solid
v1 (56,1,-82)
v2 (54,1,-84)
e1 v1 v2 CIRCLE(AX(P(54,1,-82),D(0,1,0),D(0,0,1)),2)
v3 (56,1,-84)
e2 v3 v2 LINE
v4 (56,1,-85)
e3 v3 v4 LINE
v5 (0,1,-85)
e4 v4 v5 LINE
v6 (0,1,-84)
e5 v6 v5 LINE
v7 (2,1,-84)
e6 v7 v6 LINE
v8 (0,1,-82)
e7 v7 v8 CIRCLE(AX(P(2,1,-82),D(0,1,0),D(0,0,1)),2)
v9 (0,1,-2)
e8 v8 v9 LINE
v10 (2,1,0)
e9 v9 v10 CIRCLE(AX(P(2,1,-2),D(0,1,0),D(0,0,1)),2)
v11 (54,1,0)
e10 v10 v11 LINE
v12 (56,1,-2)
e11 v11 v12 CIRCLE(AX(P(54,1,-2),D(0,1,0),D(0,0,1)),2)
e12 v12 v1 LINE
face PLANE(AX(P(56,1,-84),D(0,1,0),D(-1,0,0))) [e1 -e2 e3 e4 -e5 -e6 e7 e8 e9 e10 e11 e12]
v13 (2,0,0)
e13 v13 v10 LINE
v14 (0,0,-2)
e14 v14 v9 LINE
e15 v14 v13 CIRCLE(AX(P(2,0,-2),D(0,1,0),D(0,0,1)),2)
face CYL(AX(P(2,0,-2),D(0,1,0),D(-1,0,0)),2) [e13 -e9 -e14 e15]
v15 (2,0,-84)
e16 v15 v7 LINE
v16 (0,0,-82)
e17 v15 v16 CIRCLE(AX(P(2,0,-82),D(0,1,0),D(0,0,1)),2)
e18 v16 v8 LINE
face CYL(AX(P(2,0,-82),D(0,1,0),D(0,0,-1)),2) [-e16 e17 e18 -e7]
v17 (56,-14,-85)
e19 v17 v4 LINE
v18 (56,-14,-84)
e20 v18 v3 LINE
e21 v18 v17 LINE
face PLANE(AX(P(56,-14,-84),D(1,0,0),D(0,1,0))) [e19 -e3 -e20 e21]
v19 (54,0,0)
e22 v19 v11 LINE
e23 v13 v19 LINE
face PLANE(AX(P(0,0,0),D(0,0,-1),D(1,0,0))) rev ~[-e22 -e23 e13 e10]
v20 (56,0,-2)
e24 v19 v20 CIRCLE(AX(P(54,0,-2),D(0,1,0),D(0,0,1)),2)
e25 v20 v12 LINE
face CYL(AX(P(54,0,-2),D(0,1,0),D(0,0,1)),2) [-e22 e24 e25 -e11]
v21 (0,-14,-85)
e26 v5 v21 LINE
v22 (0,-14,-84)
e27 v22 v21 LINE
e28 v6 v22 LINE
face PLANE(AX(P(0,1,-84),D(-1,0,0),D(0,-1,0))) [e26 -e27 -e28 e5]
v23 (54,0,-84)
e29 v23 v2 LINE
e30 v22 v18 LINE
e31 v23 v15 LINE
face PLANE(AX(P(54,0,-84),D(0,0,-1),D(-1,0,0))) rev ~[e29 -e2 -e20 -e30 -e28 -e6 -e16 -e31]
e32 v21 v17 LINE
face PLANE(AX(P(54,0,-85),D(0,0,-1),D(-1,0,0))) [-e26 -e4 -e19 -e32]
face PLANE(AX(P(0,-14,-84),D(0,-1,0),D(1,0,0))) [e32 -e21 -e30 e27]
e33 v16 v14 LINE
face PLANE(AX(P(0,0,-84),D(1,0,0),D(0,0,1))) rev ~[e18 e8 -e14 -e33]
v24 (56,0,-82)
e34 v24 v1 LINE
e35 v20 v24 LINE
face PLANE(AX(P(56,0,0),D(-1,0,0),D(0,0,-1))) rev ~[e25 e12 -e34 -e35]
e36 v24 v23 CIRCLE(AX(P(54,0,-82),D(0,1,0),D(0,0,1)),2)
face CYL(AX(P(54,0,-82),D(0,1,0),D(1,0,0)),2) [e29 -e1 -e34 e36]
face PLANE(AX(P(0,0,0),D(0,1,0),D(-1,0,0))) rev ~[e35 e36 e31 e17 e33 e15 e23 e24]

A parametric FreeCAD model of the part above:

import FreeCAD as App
import Part
import Sketcher


def edges_at(feature, points):
    """Names of the edges that pass closest to the given points."""
    edges = feature.Shape.Edges
    near = lambda p: min(range(len(edges)), key=lambda i: edges[i].distToShape(Part.Vertex(*p))[0])
    return sorted({f"Edge{near(p) + 1}" for p in points})


def add_polygon(sketch, points):
    """Adds a closed chain of lines whose ends are joined by coincident constraints."""
    first, n = sketch.GeometryCount, len(points)
    for a, b in zip(points, points[1:] + points[:1]):
        sketch.addGeometry(Part.LineSegment(App.Vector(*a, 0), App.Vector(*b, 0)), False)
    for i in range(n):
        sketch.addConstraint(Sketcher.Constraint("Coincident", first + i, 2, first + (i + 1) % n, 1))

doc = App.newDocument("Part")
body = doc.addObject("PartDesign::Body", "Body")

# Sketch on XZ plane
sketch1 = body.newObject("Sketcher::SketchObject", "Sketch")
sketch1.AttachmentSupport = (doc.getObject("XZ_Plane"), [""])
sketch1.MapMode = "FlatFace"
add_polygon(sketch1, [(0, -84), (0, 0), (56, 0), (56, -84)])  # lines 0-3
sketch1.addConstraint([
    Sketcher.Constraint("Vertical", 0),
    Sketcher.Constraint("Horizontal", 1),
    Sketcher.Constraint("Vertical", 2),
    Sketcher.Constraint("Horizontal", 3),
    Sketcher.Constraint("Coincident", 0, 2, -1, 1),
    Sketcher.Constraint("DistanceX", 1, 1, 1, 2, 56.0),
    Sketcher.Constraint("DistanceY", 0, 1, 0, 2, 84.0),
])
pad1 = body.newObject("PartDesign::Pad", "Pad")
pad1.Profile = sketch1
pad1.Length = 1
pad1.Reversed = True
doc.recompute()

fillet = body.newObject("PartDesign::Fillet", "Fillet")
fillet.Base = (pad1, edges_at(pad1, [(0, 0.5, 0)]))
fillet.Radius = 2
doc.recompute()

fillet2 = body.newObject("PartDesign::Fillet", "Fillet001")
fillet2.Base = (fillet, edges_at(fillet, [(56, 0.5, 0)]))
fillet2.Radius = 2
doc.recompute()

fillet3 = body.newObject("PartDesign::Fillet", "Fillet002")
fillet3.Base = (fillet2, edges_at(fillet2, [(56, 0.5, -84)]))
fillet3.Radius = 2
doc.recompute()

fillet4 = body.newObject("PartDesign::Fillet", "Fillet003")
fillet4.Base = (fillet3, edges_at(fillet3, [(0, 0.5, -84)]))
fillet4.Radius = 2

# Sketch on XY plane
sketch2 = body.newObject("Sketcher::SketchObject", "Sketch001")
sketch2.AttachmentSupport = (doc.getObject("XY_Plane"), [""])
sketch2.MapMode = "FlatFace"
sketch2.AttachmentOffset = App.Placement(App.Vector(0, 0, -84), App.Rotation())
add_polygon(sketch2, [(0, 1), (56, 1), (56, -14), (0, -14)])  # lines 0-3
sketch2.addConstraint([
    Sketcher.Constraint("Horizontal", 0),
    Sketcher.Constraint("Vertical", 1),
    Sketcher.Constraint("Horizontal", 2),
    Sketcher.Constraint("Vertical", 3),
    Sketcher.Constraint("PointOnObject", 2, 2, -2),
    Sketcher.Constraint("DistanceY", 1, 2, 1, 1, 15.0),
    Sketcher.Constraint("DistanceX", 0, 1, 0, 2, 56.0),
    Sketcher.Constraint("DistanceY", -1, 1, 0, 2, 1.0),
])
pad2 = body.newObject("PartDesign::Pad", "Pad001")
pad2.Profile = sketch2
pad2.Length = 1
pad2.Reversed = True

doc.recompute()
